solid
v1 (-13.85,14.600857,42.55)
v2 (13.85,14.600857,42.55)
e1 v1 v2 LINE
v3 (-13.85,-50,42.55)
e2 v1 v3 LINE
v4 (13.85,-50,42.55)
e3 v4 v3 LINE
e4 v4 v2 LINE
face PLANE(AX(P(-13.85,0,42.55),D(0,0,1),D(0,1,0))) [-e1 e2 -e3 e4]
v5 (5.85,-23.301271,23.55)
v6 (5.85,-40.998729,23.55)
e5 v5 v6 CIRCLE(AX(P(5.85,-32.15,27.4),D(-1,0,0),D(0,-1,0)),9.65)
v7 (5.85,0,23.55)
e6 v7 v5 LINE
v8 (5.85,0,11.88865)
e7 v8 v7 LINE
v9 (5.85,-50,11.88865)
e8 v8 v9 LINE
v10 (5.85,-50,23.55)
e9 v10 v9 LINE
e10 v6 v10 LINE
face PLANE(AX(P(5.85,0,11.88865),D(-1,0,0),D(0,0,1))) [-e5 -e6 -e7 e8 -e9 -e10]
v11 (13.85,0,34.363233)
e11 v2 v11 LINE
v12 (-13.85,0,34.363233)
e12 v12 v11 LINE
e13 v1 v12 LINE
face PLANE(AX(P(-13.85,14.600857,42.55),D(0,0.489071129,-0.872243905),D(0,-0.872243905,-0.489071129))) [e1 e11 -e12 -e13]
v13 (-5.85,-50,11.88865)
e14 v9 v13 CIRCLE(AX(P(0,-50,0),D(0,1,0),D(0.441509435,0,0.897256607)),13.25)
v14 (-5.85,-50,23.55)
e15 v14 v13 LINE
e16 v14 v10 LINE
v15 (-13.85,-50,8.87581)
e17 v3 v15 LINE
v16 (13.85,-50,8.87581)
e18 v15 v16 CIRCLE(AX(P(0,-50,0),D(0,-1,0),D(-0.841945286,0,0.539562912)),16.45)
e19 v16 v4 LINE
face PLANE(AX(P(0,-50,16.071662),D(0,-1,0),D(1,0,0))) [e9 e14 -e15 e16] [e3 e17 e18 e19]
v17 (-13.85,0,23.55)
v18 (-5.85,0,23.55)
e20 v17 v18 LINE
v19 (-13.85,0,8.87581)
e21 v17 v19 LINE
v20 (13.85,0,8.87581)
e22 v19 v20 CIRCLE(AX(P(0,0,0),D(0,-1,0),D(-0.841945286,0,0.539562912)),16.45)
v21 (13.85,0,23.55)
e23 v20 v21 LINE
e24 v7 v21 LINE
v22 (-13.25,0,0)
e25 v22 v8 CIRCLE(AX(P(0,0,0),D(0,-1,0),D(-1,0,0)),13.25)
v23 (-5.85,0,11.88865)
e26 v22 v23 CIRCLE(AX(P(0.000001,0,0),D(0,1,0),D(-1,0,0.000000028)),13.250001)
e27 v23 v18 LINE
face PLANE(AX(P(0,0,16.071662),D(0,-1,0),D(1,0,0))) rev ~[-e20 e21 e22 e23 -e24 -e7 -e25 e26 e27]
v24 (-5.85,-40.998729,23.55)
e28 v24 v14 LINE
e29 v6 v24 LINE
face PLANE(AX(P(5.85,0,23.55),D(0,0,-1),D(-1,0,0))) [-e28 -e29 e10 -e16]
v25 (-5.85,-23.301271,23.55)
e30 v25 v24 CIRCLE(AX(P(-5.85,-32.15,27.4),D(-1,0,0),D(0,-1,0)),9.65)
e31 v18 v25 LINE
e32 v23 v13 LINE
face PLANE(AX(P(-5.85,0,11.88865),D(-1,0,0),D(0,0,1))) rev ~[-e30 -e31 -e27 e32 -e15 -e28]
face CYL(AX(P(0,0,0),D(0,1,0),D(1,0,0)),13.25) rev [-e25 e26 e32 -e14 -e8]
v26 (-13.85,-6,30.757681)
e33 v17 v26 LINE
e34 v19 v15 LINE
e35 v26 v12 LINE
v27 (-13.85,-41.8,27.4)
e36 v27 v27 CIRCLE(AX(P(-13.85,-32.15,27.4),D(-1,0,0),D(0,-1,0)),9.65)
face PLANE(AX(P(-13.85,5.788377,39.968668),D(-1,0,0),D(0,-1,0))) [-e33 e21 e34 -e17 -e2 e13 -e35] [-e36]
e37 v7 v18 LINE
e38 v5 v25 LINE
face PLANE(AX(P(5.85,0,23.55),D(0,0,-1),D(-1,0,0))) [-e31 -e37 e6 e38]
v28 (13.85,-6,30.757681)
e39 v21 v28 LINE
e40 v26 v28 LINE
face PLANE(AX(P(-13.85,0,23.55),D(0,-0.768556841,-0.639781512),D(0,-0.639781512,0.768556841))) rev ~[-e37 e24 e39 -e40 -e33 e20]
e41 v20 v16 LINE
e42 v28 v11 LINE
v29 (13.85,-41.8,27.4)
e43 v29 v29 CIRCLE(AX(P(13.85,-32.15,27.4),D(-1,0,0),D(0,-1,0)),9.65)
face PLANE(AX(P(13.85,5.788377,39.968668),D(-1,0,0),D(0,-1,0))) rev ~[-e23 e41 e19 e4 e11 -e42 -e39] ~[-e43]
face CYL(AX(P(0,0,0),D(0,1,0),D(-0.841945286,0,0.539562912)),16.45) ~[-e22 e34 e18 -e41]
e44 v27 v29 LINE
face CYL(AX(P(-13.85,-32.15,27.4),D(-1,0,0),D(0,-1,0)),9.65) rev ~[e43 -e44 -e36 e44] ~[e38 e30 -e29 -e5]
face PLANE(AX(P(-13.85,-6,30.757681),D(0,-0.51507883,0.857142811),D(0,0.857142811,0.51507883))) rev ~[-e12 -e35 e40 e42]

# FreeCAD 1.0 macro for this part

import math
import FreeCAD as App
import Part
import Sketcher
from FreeCAD import Vector
Q = App.Units.Quantity

doc = App.newDocument("Part")
params = doc.addObject("Spreadsheet::Sheet", "Params")
for row, (alias, value) in enumerate([
    ("sketch1_diameter", "26.5 mm"),
    ("sketch1_radius", "16.45 mm"),
    ("sketch1_width", "27.7 mm"),
    ("pad1_length", "50 mm"),
    ("sketch2_diameter", "19.3 mm"),
    ("sketch3_length", "7 mm"),
    ("pad2_length", "27.7 mm"),
    ("sketch5_radius", "13.25 mm"),
    ("sketch5_width", "11.7 mm"),
], start=1):
    params.set(f"A{row}", alias)
    params.set(f"B{row}", "=" + value)
    params.setAlias(f"B{row}", alias)

body = doc.addObject("PartDesign::Body", "Body")

sketch1 = body.newObject("Sketcher::SketchObject", "Sketch")
sketch1.AttachmentSupport = (doc.getObject("XZ_Plane"), [""])
sketch1.MapMode = "FlatFace"
sketch1.addGeometry([
    Part.LineSegment(Vector(-13.85, 42.55, 0), Vector(-13.85, 8.87581, 0)),
    Part.ArcOfCircle(Part.Circle(Vector(0, 0, 0), Vector(0, 0, 1), 16.45), math.radians(147.346111), math.radians(392.653889)),
    Part.LineSegment(Vector(13.85, 8.87581, 0), Vector(13.85, 42.55, 0)),
    Part.LineSegment(Vector(13.85, 42.55, 0), Vector(-13.85, 42.55, 0)),
    Part.Circle(Vector(0, 0, 0), Vector(0, 0, 1), 13.25),
], False)
sketch1.addConstraint([
    Sketcher.Constraint("Coincident", 0, 2, 1, 1),
    Sketcher.Constraint("Coincident", 1, 2, 2, 1),
    Sketcher.Constraint("Coincident", 2, 2, 3, 1),
    Sketcher.Constraint("Coincident", 3, 2, 0, 1),
    Sketcher.Constraint("Vertical", 0),
    Sketcher.Constraint("Vertical", 2),
    Sketcher.Constraint("Horizontal", 3),
    Sketcher.Constraint("Coincident", 1, 3, -1, 1),
    Sketcher.Constraint("Coincident", 4, 3, -1, 1),
    Sketcher.Constraint("Horizontal", 0, 2, 1, 2),
    Sketcher.Constraint("Diameter", 4, Q("26.5 mm")),
    Sketcher.Constraint("Radius", 1, Q("16.45 mm")),
    Sketcher.Constraint("DistanceX", 3, 2, 3, 1, Q("27.7 mm")),
    Sketcher.Constraint("DistanceY", -1, 1, 2, 2, Q("42.55 mm")),
])
sketch1.setExpression("Constraints[10]", "Params.sketch1_diameter")
sketch1.setExpression("Constraints[11]", "Params.sketch1_radius")
sketch1.setExpression("Constraints[12]", "Params.sketch1_width")
pad1 = body.newObject("PartDesign::Pad", "Pad")
pad1.Profile = sketch1
pad1.setExpression("Length", "Params.pad1_length")

sketch2 = body.newObject("Sketcher::SketchObject", "Sketch001")
sketch2.AttachmentSupport = (doc.getObject("YZ_Plane"), [""])
sketch2.MapMode = "FlatFace"
sketch2.AttachmentOffset = App.Placement(Vector(0, 0, -13.85), App.Rotation())
sketch2.addGeometry(Part.Circle(Vector(-32.15, 27.4, 0), Vector(0, 0, 1), 9.65), False)
sketch2.addConstraint([
    Sketcher.Constraint("Diameter", 0, Q("19.3 mm")),
    Sketcher.Constraint("DistanceY", -1, 1, 0, 3, Q("27.4 mm")),
    Sketcher.Constraint("DistanceX", 0, 3, -1, 1, Q("32.15 mm")),
])
sketch2.setExpression("Constraints[0]", "Params.sketch2_diameter")
pocket1 = body.newObject("PartDesign::Pocket", "Pocket")
pocket1.Profile = sketch2
pocket1.Type = "ThroughAll"
pocket1.Reversed = True

sketch3 = body.newObject("Sketcher::SketchObject", "Sketch002")
sketch3.AttachmentSupport = (doc.getObject("YZ_Plane"), [""])
sketch3.MapMode = "FlatFace"
sketch3.AttachmentOffset = App.Placement(Vector(0, 0, -13.85), App.Rotation())
sketch3.addGeometry([
    Part.LineSegment(Vector(0, 23.55, 0), Vector(-6, 30.757681, 0)),
    Part.LineSegment(Vector(-6, 30.757681, 0), Vector(0, 34.363233, 0)),
    Part.LineSegment(Vector(0, 34.363233, 0), Vector(0, 23.55, 0)),
], False)
sketch3.addConstraint([
    Sketcher.Constraint("Coincident", 0, 2, 1, 1),
    Sketcher.Constraint("Coincident", 1, 2, 2, 1),
    Sketcher.Constraint("Coincident", 2, 2, 0, 1),
    Sketcher.Constraint("Vertical", 2),
    Sketcher.Constraint("PointOnObject", 1, 2, -2),
    Sketcher.Constraint("Distance", 1, Q("7 mm")),
    Sketcher.Constraint("DistanceX", 0, 2, -1, 1, Q("6 mm")),
    Sketcher.Constraint("DistanceY", -1, 1, 2, 2, Q("23.55 mm")),
    Sketcher.Constraint("Distance", 0, Q("9.378202 mm")),
])
sketch3.setExpression("Constraints[5]", "Params.sketch3_length")
pocket2 = body.newObject("PartDesign::Pocket", "Pocket001")
pocket2.Profile = sketch3
pocket2.Type = "ThroughAll"
pocket2.Reversed = True

sketch4 = body.newObject("Sketcher::SketchObject", "Sketch003")
sketch4.AttachmentSupport = (doc.getObject("YZ_Plane"), [""])
sketch4.MapMode = "FlatFace"
sketch4.AttachmentOffset = App.Placement(Vector(0, 0, -13.85), App.Rotation())
sketch4.addGeometry([
    Part.LineSegment(Vector(14.600857, 42.55, 0), Vector(0, 34.363233, 0)),
    Part.LineSegment(Vector(0, 34.363233, 0), Vector(0, 42.55, 0)),
    Part.LineSegment(Vector(0, 42.55, 0), Vector(14.600857, 42.55, 0)),
], False)
sketch4.addConstraint([
    Sketcher.Constraint("Coincident", 0, 2, 1, 1),
    Sketcher.Constraint("Coincident", 1, 2, 2, 1),
    Sketcher.Constraint("Coincident", 2, 2, 0, 1),
    Sketcher.Constraint("Vertical", 1),
    Sketcher.Constraint("Horizontal", 2),
    Sketcher.Constraint("PointOnObject", 0, 2, -2),
    Sketcher.Constraint("DistanceY", -1, 1, 1, 2, Q("42.55 mm")),
    Sketcher.Constraint("Distance", 0, Q("16.73942 mm")),
    Sketcher.Constraint("DistanceX", 2, 1, 2, 2, Q("14.600857 mm")),
])
pad2 = body.newObject("PartDesign::Pad", "Pad001")
pad2.Profile = sketch4
pad2.setExpression("Length", "Params.pad2_length")

sketch5 = body.newObject("Sketcher::SketchObject", "Sketch004")
sketch5.AttachmentSupport = (doc.getObject("XZ_Plane"), [""])
sketch5.MapMode = "FlatFace"
sketch5.addGeometry([
    Part.LineSegment(Vector(5.85, 23.55, 0), Vector(5.85, 11.88865, 0)),
    Part.ArcOfCircle(Part.Circle(Vector(0, 0, 0), Vector(0, 0, 1), 13.25), math.radians(-180), math.radians(63.799771)),
    Part.ArcOfCircle(Part.Circle(Vector(0.000001, 0, 0), Vector(0, 0, 1), 13.250001), math.radians(116.20023), math.radians(179.999998)),
    Part.LineSegment(Vector(-5.85, 11.88865, 0), Vector(-5.85, 23.55, 0)),
    Part.LineSegment(Vector(-5.85, 23.55, 0), Vector(5.85, 23.55, 0)),
], False)
sketch5.addConstraint([
    Sketcher.Constraint("Coincident", 0, 2, 1, 2),
    Sketcher.Constraint("Tangent", 1, 1, 2, 2),
    Sketcher.Constraint("Coincident", 2, 1, 3, 1),
    Sketcher.Constraint("Coincident", 3, 2, 4, 1),
    Sketcher.Constraint("Coincident", 4, 2, 0, 1),
    Sketcher.Constraint("Vertical", 0),
    Sketcher.Constraint("Vertical", 3),
    Sketcher.Constraint("Horizontal", 4),
    Sketcher.Constraint("Coincident", 1, 3, -1, 1),
    Sketcher.Constraint("Equal", 1, 2),
    Sketcher.Constraint("PointOnObject", 1, 1, -1),
    Sketcher.Constraint("Horizontal", 0, 2, 2, 1),
    Sketcher.Constraint("Radius", 1, Q("13.25 mm")),
    Sketcher.Constraint("DistanceX", 4, 1, 4, 2, Q("11.7 mm")),
    Sketcher.Constraint("DistanceY", -1, 1, 3, 2, Q("23.55 mm")),
])
sketch5.setExpression("Constraints[12]", "Params.sketch5_radius")
sketch5.setExpression("Constraints[13]", "Params.sketch5_width")
pocket3 = body.newObject("PartDesign::Pocket", "Pocket002")
pocket3.Profile = sketch5
pocket3.Type = "ThroughAll"
pocket3.Reversed = True

doc.recompute()
